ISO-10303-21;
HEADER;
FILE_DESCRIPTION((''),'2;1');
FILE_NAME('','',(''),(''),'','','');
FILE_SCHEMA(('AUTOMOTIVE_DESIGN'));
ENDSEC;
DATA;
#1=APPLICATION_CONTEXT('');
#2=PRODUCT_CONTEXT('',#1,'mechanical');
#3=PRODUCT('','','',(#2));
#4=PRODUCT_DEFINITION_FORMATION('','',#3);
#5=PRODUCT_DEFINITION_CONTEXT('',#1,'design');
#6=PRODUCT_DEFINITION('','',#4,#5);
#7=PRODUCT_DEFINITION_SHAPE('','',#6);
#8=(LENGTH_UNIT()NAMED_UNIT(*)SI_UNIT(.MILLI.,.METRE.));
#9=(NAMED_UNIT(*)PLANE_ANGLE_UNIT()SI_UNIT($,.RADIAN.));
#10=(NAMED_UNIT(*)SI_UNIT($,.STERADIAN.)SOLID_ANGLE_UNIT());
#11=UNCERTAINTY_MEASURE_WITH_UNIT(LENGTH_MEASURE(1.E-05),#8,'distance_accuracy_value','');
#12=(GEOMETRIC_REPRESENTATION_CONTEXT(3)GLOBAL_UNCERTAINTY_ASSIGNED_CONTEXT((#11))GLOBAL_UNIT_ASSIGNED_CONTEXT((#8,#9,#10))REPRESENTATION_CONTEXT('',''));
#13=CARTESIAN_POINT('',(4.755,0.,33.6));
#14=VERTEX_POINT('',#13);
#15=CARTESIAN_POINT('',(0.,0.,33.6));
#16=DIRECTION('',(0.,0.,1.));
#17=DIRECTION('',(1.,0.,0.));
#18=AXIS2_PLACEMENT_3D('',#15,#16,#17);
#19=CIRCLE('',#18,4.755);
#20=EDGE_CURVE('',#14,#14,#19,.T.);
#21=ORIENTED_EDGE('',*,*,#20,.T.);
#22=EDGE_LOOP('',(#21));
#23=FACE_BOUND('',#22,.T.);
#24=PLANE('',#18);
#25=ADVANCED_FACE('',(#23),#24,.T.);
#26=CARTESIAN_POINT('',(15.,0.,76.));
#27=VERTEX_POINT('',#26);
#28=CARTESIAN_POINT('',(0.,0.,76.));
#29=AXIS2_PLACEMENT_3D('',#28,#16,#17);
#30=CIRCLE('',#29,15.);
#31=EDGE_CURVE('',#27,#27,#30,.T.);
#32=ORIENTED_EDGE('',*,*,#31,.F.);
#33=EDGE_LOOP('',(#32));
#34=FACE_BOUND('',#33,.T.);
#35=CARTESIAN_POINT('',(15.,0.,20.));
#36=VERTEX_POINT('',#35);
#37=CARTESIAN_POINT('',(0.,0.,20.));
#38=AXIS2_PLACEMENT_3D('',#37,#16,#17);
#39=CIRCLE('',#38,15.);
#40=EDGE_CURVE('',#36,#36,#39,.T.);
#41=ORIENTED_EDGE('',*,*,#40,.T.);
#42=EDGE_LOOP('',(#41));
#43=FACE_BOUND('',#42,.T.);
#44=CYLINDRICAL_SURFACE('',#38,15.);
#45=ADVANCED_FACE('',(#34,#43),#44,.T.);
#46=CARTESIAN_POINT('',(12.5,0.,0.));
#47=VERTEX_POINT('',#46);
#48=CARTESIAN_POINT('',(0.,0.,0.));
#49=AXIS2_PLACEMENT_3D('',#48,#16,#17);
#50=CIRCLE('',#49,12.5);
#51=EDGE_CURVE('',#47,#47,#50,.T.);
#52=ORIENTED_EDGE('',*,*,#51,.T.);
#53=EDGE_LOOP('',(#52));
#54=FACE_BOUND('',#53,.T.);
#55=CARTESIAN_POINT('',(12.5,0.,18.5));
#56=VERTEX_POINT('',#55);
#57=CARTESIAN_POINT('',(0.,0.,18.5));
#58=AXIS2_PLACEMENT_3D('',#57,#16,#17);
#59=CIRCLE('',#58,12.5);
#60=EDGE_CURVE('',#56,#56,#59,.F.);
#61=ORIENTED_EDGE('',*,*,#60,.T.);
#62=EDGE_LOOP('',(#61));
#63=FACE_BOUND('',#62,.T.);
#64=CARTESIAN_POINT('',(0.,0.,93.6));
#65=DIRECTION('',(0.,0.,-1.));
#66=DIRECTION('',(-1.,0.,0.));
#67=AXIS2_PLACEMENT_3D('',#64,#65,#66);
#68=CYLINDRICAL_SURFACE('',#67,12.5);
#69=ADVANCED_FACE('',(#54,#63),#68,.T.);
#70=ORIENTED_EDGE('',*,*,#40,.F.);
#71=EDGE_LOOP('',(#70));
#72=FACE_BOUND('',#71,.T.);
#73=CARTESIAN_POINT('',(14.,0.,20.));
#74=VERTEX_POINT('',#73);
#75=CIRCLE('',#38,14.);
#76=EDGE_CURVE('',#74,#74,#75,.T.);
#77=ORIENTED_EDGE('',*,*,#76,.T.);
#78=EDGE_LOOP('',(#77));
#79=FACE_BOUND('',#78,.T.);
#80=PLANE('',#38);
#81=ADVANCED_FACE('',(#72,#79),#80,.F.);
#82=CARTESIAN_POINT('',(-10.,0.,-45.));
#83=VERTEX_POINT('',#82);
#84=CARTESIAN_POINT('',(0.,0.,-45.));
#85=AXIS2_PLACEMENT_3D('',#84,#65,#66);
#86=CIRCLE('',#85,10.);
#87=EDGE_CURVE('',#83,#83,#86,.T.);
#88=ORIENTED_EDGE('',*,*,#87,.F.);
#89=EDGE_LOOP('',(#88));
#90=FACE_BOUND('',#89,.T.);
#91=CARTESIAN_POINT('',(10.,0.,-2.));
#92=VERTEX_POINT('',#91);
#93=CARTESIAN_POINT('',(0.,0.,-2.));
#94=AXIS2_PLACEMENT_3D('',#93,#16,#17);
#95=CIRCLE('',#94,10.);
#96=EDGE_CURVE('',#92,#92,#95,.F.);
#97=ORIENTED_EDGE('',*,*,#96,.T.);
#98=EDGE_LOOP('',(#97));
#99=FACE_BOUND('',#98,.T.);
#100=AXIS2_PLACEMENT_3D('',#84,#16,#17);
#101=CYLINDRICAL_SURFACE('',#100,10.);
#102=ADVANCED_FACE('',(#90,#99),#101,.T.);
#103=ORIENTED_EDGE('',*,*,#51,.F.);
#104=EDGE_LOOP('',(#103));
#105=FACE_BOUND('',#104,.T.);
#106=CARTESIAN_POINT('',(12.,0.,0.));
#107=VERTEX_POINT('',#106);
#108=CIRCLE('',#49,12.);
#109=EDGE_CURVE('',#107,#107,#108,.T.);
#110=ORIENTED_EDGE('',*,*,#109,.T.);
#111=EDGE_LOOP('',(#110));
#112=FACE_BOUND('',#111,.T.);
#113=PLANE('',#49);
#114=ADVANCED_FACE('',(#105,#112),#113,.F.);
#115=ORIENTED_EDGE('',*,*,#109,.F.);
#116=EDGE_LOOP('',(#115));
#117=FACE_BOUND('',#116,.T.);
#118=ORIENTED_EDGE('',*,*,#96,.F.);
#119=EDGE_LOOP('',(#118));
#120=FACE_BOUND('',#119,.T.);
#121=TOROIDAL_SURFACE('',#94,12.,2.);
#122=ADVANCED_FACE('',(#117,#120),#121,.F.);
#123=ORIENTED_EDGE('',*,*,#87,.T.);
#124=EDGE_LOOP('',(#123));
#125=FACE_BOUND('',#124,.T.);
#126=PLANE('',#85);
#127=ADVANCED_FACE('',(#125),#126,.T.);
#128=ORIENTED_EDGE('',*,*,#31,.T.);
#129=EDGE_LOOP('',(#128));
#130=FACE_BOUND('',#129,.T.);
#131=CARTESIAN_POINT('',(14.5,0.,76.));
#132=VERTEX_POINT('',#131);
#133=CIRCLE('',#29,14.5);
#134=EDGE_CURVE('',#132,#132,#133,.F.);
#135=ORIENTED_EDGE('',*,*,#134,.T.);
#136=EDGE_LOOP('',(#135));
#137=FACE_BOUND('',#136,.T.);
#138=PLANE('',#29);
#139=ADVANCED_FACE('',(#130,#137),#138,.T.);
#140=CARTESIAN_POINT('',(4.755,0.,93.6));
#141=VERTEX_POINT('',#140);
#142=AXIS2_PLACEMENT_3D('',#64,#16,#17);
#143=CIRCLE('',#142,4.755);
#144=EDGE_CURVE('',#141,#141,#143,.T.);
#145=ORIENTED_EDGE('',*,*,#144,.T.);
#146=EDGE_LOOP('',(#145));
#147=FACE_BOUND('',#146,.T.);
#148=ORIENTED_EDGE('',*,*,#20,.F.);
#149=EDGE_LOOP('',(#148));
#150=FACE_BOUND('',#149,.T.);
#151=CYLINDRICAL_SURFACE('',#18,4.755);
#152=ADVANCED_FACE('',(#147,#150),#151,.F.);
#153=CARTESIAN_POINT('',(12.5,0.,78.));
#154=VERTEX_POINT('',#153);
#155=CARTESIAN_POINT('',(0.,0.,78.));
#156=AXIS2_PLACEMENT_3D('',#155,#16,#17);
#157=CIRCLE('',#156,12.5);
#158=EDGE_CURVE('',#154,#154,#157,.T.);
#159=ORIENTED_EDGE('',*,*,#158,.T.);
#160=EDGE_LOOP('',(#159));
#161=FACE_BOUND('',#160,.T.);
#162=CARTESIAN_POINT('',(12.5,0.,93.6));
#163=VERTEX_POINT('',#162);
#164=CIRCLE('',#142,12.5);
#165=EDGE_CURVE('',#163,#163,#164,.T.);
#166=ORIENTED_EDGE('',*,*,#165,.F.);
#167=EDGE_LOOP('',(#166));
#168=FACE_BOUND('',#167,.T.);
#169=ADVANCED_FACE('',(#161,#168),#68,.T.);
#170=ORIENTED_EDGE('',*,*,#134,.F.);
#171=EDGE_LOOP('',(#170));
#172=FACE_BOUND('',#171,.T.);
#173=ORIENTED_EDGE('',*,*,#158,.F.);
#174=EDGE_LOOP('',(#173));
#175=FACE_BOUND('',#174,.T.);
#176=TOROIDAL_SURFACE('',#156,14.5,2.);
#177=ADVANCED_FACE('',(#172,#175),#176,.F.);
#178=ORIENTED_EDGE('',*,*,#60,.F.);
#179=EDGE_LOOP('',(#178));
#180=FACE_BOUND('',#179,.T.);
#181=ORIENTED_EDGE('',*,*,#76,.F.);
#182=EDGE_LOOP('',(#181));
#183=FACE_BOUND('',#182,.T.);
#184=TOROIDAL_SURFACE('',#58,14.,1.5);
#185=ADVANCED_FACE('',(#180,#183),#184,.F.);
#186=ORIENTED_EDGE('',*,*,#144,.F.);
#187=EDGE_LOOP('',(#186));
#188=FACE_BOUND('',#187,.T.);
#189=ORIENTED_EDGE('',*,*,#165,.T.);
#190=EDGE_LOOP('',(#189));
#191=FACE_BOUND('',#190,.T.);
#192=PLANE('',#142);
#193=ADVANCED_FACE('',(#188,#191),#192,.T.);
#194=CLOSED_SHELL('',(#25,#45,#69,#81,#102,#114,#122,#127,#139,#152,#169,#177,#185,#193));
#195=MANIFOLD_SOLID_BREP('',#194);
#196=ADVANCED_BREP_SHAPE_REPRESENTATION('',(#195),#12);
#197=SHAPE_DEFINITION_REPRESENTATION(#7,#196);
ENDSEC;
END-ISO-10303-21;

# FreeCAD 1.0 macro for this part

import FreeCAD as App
import Part
import Sketcher


def edges_at(feature, points):
    """Names of the edges that pass closest to the given points."""
    edges = feature.Shape.Edges
    near = lambda p: min(range(len(edges)), key=lambda i: edges[i].distToShape(Part.Vertex(*p))[0])
    return sorted({f"Edge{near(p) + 1}" for p in points})

doc = App.newDocument("Part")
body = doc.addObject("PartDesign::Body", "Body")

# Sketch on XY plane
sketch1 = body.newObject("Sketcher::SketchObject", "Sketch")
sketch1.AttachmentSupport = (doc.getObject("XY_Plane"), [""])
sketch1.MapMode = "FlatFace"
sketch1.addGeometry(Part.Circle(App.Vector(0, 0, 0), App.Vector(0, 0, 1), 12), False)
sketch1.addConstraint([
    Sketcher.Constraint("Coincident", 0, 3, -1, 1),
    Sketcher.Constraint("Diameter", 0, 25.0),
])
pad1 = body.newObject("PartDesign::Pad", "Pad")
pad1.Profile = sketch1
pad1.Length = 93.6

# Sketch on XY plane
sketch2 = body.newObject("Sketcher::SketchObject", "Sketch001")
sketch2.AttachmentSupport = (doc.getObject("XY_Plane"), [""])
sketch2.MapMode = "FlatFace"
sketch2.AttachmentOffset = App.Placement(App.Vector(0, 0, 76), App.Rotation())
sketch2.addGeometry(Part.Circle(App.Vector(0, 0, 0), App.Vector(0, 0, 1), 15), False)
sketch2.addConstraint([
    Sketcher.Constraint("Coincident", 0, 3, -1, 1),
    Sketcher.Constraint("Diameter", 0, 30.0),
])
pad2 = body.newObject("PartDesign::Pad", "Pad001")
pad2.Profile = sketch2
pad2.Length = 56
pad2.Reversed = True

# Sketch on XY plane
sketch3 = body.newObject("Sketcher::SketchObject", "Sketch002")
sketch3.AttachmentSupport = (doc.getObject("XY_Plane"), [""])
sketch3.MapMode = "FlatFace"
sketch3.addGeometry(Part.Circle(App.Vector(0, 0, 0), App.Vector(0, 0, 1), 10), False)
sketch3.addConstraint([
    Sketcher.Constraint("Coincident", 0, 3, -1, 1),
    Sketcher.Constraint("Diameter", 0, 20.0),
])
pad3 = body.newObject("PartDesign::Pad", "Pad002")
pad3.Profile = sketch3
pad3.Length = 45
pad3.Reversed = True

# Sketch on XY plane
sketch4 = body.newObject("Sketcher::SketchObject", "Sketch003")
sketch4.AttachmentSupport = (doc.getObject("XY_Plane"), [""])
sketch4.MapMode = "FlatFace"
sketch4.AttachmentOffset = App.Placement(App.Vector(0, 0, 93.6), App.Rotation())
sketch4.addGeometry(Part.Circle(App.Vector(0, 0, 0), App.Vector(0, 0, 1), 4.8), False)
sketch4.addConstraint([
    Sketcher.Constraint("Coincident", 0, 3, -1, 1),
    Sketcher.Constraint("Diameter", 0, 9.51),
])
pocket1 = body.newObject("PartDesign::Pocket", "Pocket")
pocket1.Profile = sketch4
pocket1.Length = 60
doc.recompute()

fillet = body.newObject("PartDesign::Fillet", "Fillet")
fillet.Base = (pocket1, edges_at(pocket1, [(-12.5, 0, 76)]))
fillet.Radius = 2
doc.recompute()

fillet2 = body.newObject("PartDesign::Fillet", "Fillet001")
fillet2.Base = (fillet, edges_at(fillet, [(-12.5, 0, 20)]))
fillet2.Radius = 1.5
doc.recompute()

fillet3 = body.newObject("PartDesign::Fillet", "Fillet002")
fillet3.Base = (fillet2, edges_at(fillet2, [(10, 0, 0)]))
fillet3.Radius = 2

doc.recompute()
